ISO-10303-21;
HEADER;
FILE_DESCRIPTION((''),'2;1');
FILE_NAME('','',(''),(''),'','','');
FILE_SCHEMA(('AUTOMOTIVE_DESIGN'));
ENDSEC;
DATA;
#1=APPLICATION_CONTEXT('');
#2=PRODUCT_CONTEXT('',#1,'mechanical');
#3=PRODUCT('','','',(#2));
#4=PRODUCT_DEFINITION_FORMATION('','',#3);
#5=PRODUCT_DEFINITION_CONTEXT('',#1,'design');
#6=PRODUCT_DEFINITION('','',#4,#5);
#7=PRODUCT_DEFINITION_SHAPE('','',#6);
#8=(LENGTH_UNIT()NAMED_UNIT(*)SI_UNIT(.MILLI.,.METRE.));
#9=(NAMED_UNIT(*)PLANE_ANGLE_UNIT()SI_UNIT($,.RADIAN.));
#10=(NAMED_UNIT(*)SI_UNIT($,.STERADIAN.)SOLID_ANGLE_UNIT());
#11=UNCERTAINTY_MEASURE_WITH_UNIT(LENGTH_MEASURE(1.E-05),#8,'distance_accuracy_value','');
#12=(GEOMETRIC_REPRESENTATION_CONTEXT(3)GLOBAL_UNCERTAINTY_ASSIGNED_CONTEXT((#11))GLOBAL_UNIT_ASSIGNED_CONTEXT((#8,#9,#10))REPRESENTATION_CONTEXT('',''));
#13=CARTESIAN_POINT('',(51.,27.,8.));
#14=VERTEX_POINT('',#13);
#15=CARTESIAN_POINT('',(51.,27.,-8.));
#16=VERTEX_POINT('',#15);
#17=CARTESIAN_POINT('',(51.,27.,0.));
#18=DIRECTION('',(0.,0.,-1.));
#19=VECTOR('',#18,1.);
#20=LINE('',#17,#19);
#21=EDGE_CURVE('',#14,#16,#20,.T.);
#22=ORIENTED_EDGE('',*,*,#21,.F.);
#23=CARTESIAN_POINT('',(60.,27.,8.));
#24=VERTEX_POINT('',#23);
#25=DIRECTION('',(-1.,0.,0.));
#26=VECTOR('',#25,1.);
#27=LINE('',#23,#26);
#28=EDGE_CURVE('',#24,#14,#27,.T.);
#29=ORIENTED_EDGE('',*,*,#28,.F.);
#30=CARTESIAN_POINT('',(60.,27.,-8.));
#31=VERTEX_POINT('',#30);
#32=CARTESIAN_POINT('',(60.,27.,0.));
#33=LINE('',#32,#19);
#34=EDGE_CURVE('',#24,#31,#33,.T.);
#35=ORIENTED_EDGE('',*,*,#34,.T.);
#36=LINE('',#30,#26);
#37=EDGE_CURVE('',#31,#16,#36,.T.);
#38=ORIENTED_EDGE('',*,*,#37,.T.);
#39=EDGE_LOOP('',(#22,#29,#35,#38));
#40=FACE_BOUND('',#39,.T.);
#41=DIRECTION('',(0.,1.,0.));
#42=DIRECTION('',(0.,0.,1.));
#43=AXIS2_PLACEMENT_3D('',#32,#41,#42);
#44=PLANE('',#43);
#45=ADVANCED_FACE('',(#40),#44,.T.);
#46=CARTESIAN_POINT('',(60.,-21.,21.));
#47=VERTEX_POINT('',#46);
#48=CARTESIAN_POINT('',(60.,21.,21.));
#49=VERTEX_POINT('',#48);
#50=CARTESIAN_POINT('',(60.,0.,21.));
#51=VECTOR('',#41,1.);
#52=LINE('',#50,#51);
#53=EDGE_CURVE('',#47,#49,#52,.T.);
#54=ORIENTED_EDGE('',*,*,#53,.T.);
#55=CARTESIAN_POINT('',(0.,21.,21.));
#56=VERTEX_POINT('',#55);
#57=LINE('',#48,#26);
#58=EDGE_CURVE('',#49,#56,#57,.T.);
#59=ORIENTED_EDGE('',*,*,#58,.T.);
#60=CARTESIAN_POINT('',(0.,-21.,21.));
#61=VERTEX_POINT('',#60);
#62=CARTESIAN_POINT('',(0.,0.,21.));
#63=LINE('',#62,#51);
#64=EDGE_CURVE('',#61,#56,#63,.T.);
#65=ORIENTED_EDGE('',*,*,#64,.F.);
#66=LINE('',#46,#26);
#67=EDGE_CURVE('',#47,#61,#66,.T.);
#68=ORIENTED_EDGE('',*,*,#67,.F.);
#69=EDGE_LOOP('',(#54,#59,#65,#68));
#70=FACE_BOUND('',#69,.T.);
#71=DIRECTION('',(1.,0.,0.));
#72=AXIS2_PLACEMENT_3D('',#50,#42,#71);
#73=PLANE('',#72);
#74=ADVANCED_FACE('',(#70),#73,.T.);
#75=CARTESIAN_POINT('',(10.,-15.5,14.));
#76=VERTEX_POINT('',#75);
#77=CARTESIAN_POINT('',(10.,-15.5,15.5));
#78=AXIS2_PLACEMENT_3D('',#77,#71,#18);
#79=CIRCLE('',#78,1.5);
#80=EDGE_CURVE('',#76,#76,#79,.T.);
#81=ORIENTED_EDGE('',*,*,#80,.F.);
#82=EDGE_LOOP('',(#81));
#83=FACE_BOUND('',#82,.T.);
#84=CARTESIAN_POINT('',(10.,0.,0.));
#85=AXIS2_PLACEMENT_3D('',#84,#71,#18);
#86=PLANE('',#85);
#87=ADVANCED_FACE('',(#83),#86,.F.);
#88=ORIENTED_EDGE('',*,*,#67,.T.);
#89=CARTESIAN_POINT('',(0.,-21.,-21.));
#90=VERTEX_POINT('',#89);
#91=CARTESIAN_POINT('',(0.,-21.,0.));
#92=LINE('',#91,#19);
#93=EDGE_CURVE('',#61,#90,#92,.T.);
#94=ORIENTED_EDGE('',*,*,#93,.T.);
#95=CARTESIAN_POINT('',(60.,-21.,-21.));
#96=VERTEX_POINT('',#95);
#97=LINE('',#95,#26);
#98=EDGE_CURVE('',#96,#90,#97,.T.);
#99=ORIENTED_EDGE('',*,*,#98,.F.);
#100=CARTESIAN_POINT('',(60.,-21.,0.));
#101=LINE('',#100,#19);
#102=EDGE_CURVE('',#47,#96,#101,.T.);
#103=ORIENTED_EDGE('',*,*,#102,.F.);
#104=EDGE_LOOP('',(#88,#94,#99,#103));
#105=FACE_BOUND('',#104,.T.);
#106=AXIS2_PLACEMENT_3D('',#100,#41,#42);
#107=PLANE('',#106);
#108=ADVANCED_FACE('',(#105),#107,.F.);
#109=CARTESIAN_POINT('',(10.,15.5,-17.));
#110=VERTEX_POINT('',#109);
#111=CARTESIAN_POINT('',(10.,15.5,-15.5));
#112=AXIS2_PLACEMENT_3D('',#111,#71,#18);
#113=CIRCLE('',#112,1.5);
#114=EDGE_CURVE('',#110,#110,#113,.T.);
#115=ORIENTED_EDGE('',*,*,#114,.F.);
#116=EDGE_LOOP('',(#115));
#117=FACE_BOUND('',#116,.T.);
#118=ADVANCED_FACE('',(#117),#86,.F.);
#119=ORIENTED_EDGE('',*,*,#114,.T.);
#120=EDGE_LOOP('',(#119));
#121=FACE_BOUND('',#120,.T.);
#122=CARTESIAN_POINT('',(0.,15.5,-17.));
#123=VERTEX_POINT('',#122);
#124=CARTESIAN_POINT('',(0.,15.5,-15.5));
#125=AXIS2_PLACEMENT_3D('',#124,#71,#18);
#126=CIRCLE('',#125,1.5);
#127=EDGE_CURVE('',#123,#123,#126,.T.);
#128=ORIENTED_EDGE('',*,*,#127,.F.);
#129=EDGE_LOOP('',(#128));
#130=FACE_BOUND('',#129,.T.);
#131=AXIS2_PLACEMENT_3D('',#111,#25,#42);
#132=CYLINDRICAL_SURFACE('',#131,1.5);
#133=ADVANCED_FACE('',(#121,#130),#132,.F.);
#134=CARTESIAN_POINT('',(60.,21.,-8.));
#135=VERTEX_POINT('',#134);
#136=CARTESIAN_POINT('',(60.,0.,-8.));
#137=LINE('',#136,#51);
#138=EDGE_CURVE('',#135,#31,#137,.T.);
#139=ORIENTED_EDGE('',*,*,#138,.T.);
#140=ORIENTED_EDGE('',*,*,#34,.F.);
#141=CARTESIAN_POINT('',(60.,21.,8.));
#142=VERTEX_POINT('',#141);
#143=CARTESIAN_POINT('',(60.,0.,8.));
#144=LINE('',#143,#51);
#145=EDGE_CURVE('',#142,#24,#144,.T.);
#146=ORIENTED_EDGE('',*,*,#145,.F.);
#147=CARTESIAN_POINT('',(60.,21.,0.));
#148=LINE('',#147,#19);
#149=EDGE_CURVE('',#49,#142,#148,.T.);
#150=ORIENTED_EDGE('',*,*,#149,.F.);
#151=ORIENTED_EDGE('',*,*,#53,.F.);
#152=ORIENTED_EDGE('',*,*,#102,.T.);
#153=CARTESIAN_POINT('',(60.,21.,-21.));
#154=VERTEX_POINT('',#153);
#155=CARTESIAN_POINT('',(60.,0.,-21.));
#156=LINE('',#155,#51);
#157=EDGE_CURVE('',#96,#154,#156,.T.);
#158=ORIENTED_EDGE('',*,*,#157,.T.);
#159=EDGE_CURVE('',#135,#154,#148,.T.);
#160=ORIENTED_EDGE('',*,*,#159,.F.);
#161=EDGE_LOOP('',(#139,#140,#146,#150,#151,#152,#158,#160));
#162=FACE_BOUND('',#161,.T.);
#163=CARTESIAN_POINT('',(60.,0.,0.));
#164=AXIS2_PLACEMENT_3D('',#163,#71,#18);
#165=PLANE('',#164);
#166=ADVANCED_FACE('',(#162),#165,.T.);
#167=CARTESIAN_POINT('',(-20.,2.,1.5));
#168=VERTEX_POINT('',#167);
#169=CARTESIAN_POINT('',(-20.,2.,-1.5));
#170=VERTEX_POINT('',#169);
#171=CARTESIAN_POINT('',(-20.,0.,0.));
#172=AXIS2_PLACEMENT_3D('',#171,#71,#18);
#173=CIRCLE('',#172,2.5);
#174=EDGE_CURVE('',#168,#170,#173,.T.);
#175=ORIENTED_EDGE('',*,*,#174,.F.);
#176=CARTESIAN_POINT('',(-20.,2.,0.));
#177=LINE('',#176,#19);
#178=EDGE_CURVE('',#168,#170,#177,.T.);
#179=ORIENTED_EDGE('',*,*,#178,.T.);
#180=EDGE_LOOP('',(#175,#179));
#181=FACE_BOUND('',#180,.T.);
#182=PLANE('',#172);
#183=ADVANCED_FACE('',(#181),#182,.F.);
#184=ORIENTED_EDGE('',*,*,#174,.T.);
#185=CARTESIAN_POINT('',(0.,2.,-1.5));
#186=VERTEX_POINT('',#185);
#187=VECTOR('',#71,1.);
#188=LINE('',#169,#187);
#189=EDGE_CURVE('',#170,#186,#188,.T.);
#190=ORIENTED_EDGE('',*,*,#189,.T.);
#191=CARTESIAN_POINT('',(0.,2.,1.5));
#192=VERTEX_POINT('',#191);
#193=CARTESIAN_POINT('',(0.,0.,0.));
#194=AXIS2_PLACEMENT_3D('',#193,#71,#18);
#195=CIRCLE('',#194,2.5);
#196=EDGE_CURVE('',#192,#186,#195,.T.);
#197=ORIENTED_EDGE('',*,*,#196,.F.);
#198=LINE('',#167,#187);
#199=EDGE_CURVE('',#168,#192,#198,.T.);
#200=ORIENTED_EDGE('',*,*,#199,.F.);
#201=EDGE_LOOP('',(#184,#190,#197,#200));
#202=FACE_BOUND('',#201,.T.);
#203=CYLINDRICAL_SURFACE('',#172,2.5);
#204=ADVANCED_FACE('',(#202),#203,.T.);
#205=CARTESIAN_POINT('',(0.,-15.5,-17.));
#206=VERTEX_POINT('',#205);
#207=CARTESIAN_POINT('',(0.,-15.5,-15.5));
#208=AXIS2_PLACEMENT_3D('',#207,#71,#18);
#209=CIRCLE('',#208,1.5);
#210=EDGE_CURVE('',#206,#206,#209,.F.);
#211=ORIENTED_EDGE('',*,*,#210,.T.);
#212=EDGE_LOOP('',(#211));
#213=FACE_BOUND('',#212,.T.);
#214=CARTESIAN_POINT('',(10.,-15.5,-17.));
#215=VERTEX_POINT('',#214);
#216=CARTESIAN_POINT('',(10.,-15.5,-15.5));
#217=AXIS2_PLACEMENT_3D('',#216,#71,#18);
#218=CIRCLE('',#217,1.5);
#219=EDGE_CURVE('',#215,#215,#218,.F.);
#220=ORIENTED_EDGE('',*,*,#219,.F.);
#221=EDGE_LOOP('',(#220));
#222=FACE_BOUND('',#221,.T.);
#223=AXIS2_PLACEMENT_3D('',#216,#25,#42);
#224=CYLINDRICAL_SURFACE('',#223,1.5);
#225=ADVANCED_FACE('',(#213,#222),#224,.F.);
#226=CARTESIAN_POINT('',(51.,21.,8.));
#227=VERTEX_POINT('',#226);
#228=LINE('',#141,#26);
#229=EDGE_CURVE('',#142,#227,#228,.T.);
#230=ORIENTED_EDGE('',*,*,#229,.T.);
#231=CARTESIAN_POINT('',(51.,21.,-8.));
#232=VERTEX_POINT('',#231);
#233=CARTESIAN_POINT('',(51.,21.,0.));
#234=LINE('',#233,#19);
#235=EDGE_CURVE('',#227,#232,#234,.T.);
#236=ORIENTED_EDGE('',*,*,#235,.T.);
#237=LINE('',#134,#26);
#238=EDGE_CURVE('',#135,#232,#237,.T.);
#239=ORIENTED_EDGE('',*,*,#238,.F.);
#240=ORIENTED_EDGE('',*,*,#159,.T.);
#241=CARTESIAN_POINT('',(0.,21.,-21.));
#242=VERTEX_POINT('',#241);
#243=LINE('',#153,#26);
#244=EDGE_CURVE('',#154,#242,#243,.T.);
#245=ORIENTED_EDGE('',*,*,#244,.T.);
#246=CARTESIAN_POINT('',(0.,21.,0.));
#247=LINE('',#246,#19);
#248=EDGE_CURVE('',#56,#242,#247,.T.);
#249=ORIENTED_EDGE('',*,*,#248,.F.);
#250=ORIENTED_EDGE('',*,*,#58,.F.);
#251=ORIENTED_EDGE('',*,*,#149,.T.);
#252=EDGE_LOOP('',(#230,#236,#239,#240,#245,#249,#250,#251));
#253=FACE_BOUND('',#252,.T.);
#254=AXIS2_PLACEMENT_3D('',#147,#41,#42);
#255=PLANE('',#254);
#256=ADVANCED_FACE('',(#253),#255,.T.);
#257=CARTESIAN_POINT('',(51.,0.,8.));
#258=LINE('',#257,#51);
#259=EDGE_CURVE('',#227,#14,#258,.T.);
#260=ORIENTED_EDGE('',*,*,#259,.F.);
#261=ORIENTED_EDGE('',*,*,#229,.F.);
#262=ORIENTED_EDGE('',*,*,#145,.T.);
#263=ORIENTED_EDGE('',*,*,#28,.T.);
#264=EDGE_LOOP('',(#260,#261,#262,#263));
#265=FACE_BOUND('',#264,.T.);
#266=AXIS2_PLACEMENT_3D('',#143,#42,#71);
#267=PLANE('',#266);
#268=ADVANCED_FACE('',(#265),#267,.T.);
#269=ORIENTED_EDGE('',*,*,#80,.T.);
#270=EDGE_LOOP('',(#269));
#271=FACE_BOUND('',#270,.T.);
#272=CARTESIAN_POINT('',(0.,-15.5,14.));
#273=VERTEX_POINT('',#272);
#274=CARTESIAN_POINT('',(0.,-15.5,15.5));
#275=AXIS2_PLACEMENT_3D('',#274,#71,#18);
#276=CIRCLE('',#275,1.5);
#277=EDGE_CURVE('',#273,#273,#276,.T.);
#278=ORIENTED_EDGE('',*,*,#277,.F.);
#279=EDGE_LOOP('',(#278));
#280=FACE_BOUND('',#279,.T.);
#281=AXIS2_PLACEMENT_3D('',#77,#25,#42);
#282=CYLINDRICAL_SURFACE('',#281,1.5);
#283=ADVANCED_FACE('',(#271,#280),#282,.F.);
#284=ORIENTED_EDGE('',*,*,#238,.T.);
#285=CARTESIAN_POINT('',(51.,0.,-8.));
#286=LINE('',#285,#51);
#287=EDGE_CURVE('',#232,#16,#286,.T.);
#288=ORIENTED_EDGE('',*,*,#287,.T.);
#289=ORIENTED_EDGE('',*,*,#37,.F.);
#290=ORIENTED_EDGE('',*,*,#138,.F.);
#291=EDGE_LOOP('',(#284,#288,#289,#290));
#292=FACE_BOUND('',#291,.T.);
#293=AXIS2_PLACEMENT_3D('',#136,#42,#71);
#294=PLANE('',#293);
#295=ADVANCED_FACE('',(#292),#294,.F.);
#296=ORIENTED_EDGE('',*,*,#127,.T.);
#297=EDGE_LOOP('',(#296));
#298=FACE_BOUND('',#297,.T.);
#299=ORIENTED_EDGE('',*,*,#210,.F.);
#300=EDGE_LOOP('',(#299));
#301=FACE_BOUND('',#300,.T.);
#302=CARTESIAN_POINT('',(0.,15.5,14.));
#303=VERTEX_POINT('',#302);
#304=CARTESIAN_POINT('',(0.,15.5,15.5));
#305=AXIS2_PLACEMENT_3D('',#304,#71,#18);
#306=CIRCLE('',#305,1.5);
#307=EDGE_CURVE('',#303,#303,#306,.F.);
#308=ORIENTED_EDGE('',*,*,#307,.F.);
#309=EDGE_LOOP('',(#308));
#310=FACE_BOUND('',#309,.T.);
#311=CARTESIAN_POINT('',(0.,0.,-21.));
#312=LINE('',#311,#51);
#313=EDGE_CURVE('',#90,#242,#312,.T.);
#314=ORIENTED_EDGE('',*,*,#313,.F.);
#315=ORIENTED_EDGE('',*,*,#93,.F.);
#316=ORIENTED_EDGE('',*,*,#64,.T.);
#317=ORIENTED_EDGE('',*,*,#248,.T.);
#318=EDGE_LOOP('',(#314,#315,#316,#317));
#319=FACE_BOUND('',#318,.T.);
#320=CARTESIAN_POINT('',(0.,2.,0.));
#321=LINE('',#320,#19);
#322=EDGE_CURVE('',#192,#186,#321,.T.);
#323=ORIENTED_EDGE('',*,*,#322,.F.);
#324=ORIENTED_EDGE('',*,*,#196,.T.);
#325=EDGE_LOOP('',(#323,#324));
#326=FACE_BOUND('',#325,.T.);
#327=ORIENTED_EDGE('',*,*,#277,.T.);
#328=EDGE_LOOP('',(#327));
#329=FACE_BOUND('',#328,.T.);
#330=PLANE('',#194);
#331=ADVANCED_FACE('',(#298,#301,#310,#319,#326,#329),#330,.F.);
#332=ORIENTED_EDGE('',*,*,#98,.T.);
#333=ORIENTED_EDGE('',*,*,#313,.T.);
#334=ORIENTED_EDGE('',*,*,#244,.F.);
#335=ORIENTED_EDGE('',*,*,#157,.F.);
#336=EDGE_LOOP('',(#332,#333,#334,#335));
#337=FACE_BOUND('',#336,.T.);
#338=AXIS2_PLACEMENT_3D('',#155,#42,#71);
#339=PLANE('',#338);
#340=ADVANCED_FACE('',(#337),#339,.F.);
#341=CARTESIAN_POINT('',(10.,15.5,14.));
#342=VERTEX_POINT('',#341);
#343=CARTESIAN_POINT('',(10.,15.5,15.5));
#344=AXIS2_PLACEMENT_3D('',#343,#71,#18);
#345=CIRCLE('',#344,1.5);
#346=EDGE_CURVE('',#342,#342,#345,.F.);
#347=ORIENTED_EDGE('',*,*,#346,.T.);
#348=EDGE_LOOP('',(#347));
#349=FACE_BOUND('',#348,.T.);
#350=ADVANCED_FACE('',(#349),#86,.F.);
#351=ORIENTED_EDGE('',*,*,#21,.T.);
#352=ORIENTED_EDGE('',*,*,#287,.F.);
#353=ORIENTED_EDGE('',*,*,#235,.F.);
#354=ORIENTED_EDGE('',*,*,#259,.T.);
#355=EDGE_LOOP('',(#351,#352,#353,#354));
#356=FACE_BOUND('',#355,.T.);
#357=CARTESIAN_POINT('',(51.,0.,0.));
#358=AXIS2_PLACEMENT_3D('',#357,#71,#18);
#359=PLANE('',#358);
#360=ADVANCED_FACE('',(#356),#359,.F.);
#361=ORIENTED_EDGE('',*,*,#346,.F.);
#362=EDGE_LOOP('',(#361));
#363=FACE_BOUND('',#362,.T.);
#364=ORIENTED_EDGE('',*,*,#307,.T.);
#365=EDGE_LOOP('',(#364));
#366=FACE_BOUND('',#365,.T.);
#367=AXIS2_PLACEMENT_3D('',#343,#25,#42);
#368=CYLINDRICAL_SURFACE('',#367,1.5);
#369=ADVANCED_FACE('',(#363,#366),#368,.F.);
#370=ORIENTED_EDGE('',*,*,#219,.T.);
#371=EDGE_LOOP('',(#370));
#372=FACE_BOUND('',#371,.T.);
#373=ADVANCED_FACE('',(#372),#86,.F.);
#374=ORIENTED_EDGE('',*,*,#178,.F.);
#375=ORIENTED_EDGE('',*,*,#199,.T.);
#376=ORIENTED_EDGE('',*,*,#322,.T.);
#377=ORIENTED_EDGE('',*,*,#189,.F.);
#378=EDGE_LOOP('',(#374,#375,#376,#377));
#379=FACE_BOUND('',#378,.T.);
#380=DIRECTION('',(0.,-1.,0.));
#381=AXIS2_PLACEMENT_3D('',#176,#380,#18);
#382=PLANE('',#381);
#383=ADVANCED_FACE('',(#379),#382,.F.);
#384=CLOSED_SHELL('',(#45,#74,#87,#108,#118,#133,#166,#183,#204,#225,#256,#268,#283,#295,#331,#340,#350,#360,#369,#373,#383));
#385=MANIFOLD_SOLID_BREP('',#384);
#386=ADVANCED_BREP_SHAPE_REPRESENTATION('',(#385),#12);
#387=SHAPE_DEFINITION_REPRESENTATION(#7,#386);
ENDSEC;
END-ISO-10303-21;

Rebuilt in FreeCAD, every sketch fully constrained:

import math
import FreeCAD as App
import Part
import Sketcher


def add_polygon(sketch, points):
    """Adds a closed chain of lines whose ends are joined by coincident constraints."""
    first, n = sketch.GeometryCount, len(points)
    for a, b in zip(points, points[1:] + points[:1]):
        sketch.addGeometry(Part.LineSegment(App.Vector(*a, 0), App.Vector(*b, 0)), False)
    for i in range(n):
        sketch.addConstraint(Sketcher.Constraint("Coincident", first + i, 2, first + (i + 1) % n, 1))

doc = App.newDocument("Part")
body = doc.addObject("PartDesign::Body", "Body")

sketch1 = doc.addObject("Sketcher::SketchObject", "Sketch")
body.addObject(sketch1)
sketch1.AttachmentSupport = (doc.YZ_Plane, [""])
sketch1.MapMode = "FlatFace"
add_polygon(sketch1, [(21, 21), (-21, 21), (-21, -21), (21, -21)])
sketch1.addGeometry(Part.Circle(App.Vector(-15.5, 15.5, 0), App.Vector(0, 0, 1), 1.5), False)
sketch1.addGeometry(Part.Circle(App.Vector(-15.5, -15.5, 0), App.Vector(0, 0, 1), 1.5), False)
sketch1.addGeometry(Part.Circle(App.Vector(15.5, 15.5, 0), App.Vector(0, 0, 1), 1.5), False)
sketch1.addGeometry(Part.Circle(App.Vector(15.5, -15.5, 0), App.Vector(0, 0, 1), 1.5), False)
sketch1.addConstraint([
    Sketcher.Constraint("Horizontal", 0),
    Sketcher.Constraint("Vertical", 1),
    Sketcher.Constraint("Horizontal", 2),
    Sketcher.Constraint("Vertical", 3),
    Sketcher.Constraint("Equal", 4, 5),
    Sketcher.Constraint("Equal", 5, 6),
    Sketcher.Constraint("Equal", 6, 7),
    Sketcher.Constraint("Symmetric", 5, 3, 6, 3, -1, 1),
    Sketcher.Constraint("Symmetric", 4, 3, 7, 3, -1, 1),
    Sketcher.Constraint("Symmetric", 0, 2, 2, 2, -1, 1),
    Sketcher.Constraint("Symmetric", 4, 3, 6, 3, -2),
    Sketcher.Constraint("Equal", 2, 1),
    Sketcher.Constraint("Diameter", 4, 3.0),
    Sketcher.Constraint("DistanceX", 0, 2, 0, 1, 42.0),
    Sketcher.Constraint("DistanceY", 5, 3, 4, 3, 31.0),
    Sketcher.Constraint("DistanceX", 4, 3, 6, 3, 31.0),
])
pad1 = doc.addObject("PartDesign::Pad", "Pad")
body.addObject(pad1)
pad1.Profile = sketch1
pad1.Length = 60

sketch2 = doc.addObject("Sketcher::SketchObject", "Sketch001")
body.addObject(sketch2)
sketch2.AttachmentSupport = (doc.YZ_Plane, [""])
sketch2.MapMode = "FlatFace"
sketch2.addGeometry([
    Part.LineSegment(App.Vector(2, -1.5, 0), App.Vector(2, 1.5, 0)),
    Part.ArcOfCircle(Part.Circle(App.Vector(0, 0, 0), App.Vector(0, 0, 1), 2.5), math.radians(37), math.radians(323)),
], False)
sketch2.addConstraint([
    Sketcher.Constraint("Coincident", 0, 1, 1, 2),
    Sketcher.Constraint("Coincident", 1, 1, 0, 2),
    Sketcher.Constraint("Vertical", 0),
    Sketcher.Constraint("Coincident", 1, 3, -1, 1),
    Sketcher.Constraint("Radius", 1, 2.5),
    Sketcher.Constraint("DistanceY", 0, 1, 0, 2, 3.0),
])
pad2 = doc.addObject("PartDesign::Pad", "Pad001")
body.addObject(pad2)
pad2.Profile = sketch2
pad2.Length = 20
pad2.Reversed = True

sketch3 = doc.addObject("Sketcher::SketchObject", "Sketch002")
body.addObject(sketch3)
sketch3.AttachmentSupport = (doc.YZ_Plane, [""])
sketch3.MapMode = "FlatFace"
add_polygon(sketch3, [(27, 8), (21, 8), (21, -8), (27, -8)])
sketch3.addConstraint([
    Sketcher.Constraint("Horizontal", 0),
    Sketcher.Constraint("Vertical", 1),
    Sketcher.Constraint("Horizontal", 2),
    Sketcher.Constraint("Vertical", 3),
    Sketcher.Constraint("DistanceX", 0, 2, 0, 1, 6.0),
    Sketcher.Constraint("DistanceY", 1, 2, 1, 1, 16.0),
    Sketcher.Constraint("DistanceX", -1, 1, 0, 2, 21.0),
    Sketcher.Constraint("DistanceY", -1, 1, 0, 2, 8.0),
])
pad3 = doc.addObject("PartDesign::Pad", "Pad002")
body.addObject(pad3)
pad3.Profile = sketch3
pad3.Length = 60

sketch4 = doc.addObject("Sketcher::SketchObject", "Sketch003")
body.addObject(sketch4)
sketch4.AttachmentSupport = (doc.YZ_Plane, [""])
sketch4.MapMode = "FlatFace"
add_polygon(sketch4, [(27, 8), (21, 8), (21, -8), (27, -8)])
sketch4.addConstraint([
    Sketcher.Constraint("Horizontal", 0),
    Sketcher.Constraint("Vertical", 1),
    Sketcher.Constraint("Horizontal", 2),
    Sketcher.Constraint("Vertical", 3),
    Sketcher.Constraint("DistanceX", 0, 2, 0, 1, 6.0),
    Sketcher.Constraint("DistanceY", 1, 2, 1, 1, 16.0),
    Sketcher.Constraint("DistanceX", -1, 1, 0, 2, 21.0),
    Sketcher.Constraint("DistanceY", -1, 1, 0, 2, 8.0),
])
pocket1 = doc.addObject("PartDesign::Pocket", "Pocket")
body.addObject(pocket1)
pocket1.Profile = sketch4
pocket1.Length = 51
pocket1.Reversed = True

sketch5 = doc.addObject("Sketcher::SketchObject", "Sketch004")
body.addObject(sketch5)
sketch5.AttachmentSupport = (doc.YZ_Plane, [""])
sketch5.MapMode = "FlatFace"
sketch5.addGeometry([
    Part.Circle(App.Vector(15.5, -15.5, 0), App.Vector(0, 0, 1), 1.5),
    Part.Circle(App.Vector(-15.5, -15.5, 0), App.Vector(0, 0, 1), 1.5),
    Part.Circle(App.Vector(15.5, 15.5, 0), App.Vector(0, 0, 1), 1.5),
    Part.Circle(App.Vector(-15.5, 15.5, 0), App.Vector(0, 0, 1), 1.5),
], False)
sketch5.addConstraint([
    Sketcher.Constraint("Equal", 0, 1),
    Sketcher.Constraint("Equal", 1, 2),
    Sketcher.Constraint("Equal", 2, 3),
    Sketcher.Constraint("Symmetric", 1, 3, 2, 3, -1, 1),
    Sketcher.Constraint("Symmetric", 0, 3, 3, 3, -1, 1),
    Sketcher.Constraint("Symmetric", 0, 3, 1, 3, -2),
    Sketcher.Constraint("Diameter", 0, 3.0),
    Sketcher.Constraint("DistanceX", 1, 3, 0, 3, 31.0),
    Sketcher.Constraint("DistanceY", 0, 3, 2, 3, 31.0),
])
pad4 = doc.addObject("PartDesign::Pad", "Pad003")
body.addObject(pad4)
pad4.Profile = sketch5
pad4.Length = 60

sketch6 = doc.addObject("Sketcher::SketchObject", "Sketch005")
body.addObject(sketch6)
sketch6.AttachmentSupport = (doc.YZ_Plane, [""])
sketch6.MapMode = "FlatFace"
sketch6.addGeometry([
    Part.Circle(App.Vector(-15.5, 15.5, 0), App.Vector(0, 0, 1), 1.5),
    Part.Circle(App.Vector(15.5, 15.5, 0), App.Vector(0, 0, 1), 1.5),
    Part.Circle(App.Vector(15.5, -15.5, 0), App.Vector(0, 0, 1), 1.5),
    Part.Circle(App.Vector(-15.5, -15.5, 0), App.Vector(0, 0, 1), 1.5),
], False)
sketch6.addConstraint([
    Sketcher.Constraint("Equal", 0, 1),
    Sketcher.Constraint("Equal", 1, 2),
    Sketcher.Constraint("Equal", 2, 3),
    Sketcher.Constraint("Symmetric", 0, 3, 2, 3, -1, 1),
    Sketcher.Constraint("Symmetric", 1, 3, 3, 3, -1, 1),
    Sketcher.Constraint("Symmetric", 0, 3, 1, 3, -2),
    Sketcher.Constraint("Diameter", 0, 3.0),
    Sketcher.Constraint("DistanceX", 0, 3, 1, 3, 31.0),
    Sketcher.Constraint("DistanceY", 2, 3, 1, 3, 31.0),
])
pocket2 = doc.addObject("PartDesign::Pocket", "Pocket001")
body.addObject(pocket2)
pocket2.Profile = sketch6
pocket2.Length = 10
pocket2.Reversed = True

doc.recompute()
